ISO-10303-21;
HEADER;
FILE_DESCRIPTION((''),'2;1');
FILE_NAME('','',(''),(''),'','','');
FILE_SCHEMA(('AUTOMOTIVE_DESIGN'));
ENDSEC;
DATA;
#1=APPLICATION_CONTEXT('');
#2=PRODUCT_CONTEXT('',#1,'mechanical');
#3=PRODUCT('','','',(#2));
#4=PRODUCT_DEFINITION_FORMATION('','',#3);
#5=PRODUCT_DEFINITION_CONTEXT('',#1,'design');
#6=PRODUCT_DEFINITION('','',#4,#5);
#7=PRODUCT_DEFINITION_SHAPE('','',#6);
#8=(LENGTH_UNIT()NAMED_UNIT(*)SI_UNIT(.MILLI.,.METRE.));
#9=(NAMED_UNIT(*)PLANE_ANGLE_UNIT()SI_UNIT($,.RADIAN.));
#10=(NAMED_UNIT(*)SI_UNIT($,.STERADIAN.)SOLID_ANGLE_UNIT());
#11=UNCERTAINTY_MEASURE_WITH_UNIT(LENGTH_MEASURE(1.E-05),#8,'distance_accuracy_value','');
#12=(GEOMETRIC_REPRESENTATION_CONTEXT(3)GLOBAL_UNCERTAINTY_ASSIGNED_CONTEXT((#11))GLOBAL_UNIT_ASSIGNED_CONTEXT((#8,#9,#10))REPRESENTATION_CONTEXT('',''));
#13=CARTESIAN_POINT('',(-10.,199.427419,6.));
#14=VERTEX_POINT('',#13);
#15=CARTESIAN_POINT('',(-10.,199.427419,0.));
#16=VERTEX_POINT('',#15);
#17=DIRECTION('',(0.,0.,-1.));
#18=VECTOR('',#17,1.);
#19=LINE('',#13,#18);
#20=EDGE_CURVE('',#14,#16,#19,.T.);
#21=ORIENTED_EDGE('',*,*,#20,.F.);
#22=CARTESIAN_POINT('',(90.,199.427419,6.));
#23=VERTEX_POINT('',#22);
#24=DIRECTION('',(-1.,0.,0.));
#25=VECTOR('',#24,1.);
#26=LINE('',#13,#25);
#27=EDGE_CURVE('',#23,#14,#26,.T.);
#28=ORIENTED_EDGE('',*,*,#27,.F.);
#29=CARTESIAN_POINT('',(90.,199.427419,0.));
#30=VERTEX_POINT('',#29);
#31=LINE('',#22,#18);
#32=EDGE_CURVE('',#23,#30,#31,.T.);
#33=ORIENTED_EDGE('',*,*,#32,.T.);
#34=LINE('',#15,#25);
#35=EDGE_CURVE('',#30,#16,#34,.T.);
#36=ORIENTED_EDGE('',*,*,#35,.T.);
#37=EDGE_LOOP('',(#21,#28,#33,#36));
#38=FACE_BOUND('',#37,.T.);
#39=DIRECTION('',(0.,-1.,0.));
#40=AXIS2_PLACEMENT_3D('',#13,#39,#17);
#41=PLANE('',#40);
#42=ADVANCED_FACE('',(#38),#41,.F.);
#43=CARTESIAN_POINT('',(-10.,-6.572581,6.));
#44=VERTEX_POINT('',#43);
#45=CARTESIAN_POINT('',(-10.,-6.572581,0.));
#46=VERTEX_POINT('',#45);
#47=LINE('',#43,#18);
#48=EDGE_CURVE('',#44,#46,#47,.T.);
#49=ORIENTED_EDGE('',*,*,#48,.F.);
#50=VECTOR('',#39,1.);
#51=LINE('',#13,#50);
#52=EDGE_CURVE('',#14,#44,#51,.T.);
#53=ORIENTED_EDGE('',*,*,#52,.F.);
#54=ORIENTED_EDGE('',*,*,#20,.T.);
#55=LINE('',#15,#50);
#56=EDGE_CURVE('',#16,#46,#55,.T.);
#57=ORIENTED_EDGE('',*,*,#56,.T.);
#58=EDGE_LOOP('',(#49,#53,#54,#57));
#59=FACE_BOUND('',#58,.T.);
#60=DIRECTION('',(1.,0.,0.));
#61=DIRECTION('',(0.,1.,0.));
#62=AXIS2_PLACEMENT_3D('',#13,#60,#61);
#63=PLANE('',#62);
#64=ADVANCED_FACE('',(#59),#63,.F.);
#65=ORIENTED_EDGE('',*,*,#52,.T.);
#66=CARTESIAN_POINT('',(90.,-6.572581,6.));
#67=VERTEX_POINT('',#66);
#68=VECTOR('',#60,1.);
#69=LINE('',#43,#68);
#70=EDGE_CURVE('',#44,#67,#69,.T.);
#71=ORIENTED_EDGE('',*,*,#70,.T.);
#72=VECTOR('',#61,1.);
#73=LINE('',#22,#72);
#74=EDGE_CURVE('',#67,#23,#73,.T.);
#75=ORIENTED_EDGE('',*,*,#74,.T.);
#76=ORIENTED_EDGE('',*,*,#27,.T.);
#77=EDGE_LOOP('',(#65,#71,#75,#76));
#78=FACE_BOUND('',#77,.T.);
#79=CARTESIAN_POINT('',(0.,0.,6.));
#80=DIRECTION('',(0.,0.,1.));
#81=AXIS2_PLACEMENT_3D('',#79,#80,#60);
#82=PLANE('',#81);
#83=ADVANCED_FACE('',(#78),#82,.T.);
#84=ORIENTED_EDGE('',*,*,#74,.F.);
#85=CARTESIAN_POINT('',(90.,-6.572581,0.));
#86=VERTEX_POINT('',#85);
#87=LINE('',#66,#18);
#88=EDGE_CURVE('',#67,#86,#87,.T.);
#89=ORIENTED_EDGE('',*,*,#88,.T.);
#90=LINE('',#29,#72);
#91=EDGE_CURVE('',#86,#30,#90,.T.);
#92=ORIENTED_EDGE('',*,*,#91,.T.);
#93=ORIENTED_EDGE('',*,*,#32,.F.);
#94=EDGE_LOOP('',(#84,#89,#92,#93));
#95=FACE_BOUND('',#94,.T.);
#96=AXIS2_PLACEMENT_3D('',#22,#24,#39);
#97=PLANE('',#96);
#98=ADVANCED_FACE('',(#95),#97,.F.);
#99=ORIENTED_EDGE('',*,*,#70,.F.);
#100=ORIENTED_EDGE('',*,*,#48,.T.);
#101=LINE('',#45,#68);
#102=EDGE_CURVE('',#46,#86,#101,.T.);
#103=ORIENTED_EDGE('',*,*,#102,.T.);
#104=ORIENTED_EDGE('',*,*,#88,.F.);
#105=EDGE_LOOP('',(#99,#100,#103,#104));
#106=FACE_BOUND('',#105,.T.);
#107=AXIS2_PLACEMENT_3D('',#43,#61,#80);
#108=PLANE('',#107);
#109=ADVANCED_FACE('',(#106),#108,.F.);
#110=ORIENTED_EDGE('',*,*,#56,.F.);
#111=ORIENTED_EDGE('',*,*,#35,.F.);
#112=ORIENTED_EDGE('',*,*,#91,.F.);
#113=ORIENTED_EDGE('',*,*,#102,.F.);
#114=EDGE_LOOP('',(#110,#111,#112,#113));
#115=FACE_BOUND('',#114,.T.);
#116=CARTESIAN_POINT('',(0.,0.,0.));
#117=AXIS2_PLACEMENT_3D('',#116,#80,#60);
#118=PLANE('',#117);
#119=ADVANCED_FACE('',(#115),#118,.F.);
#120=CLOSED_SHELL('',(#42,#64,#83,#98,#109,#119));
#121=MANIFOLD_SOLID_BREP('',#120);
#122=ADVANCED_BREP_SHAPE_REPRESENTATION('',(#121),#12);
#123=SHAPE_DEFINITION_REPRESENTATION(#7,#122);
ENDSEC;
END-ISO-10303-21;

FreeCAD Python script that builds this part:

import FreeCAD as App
import Part
import Sketcher
from FreeCAD import Vector

doc = App.newDocument("Part")
body = doc.addObject("PartDesign::Body", "Body")

sketch1 = body.newObject("Sketcher::SketchObject", "Sketch")
sketch1.AttachmentSupport = (doc.getObject("XY_Plane"), [""])
sketch1.MapMode = "FlatFace"
sketch1.addGeometry([
    Part.LineSegment(Vector(-10, 199, 0), Vector(-10, -7, 0)),
    Part.LineSegment(Vector(-10, -7, 0), Vector(90, -7, 0)),
    Part.LineSegment(Vector(90, -7, 0), Vector(90, 199, 0)),
    Part.LineSegment(Vector(90, 199, 0), Vector(-10, 199, 0)),
], False)
sketch1.addConstraint([
    Sketcher.Constraint("Coincident", 0, 2, 1, 1),
    Sketcher.Constraint("Coincident", 1, 2, 2, 1),
    Sketcher.Constraint("Coincident", 2, 2, 3, 1),
    Sketcher.Constraint("Coincident", 3, 2, 0, 1),
    Sketcher.Constraint("Vertical", 0),
    Sketcher.Constraint("Horizontal", 1),
    Sketcher.Constraint("Vertical", 2),
    Sketcher.Constraint("Horizontal", 3),
    Sketcher.Constraint("DistanceX", 1, 1, 1, 2, 100.0),
    Sketcher.Constraint("DistanceY", 0, 2, 0, 1, 206.0),
    Sketcher.Constraint("DistanceX", 0, 2, -1, 1, 10.0),
    Sketcher.Constraint("DistanceY", 0, 2, -1, 1, 6.572581),
])
pad1 = body.newObject("PartDesign::Pad", "Pad")
pad1.Profile = sketch1
pad1.Length = 6

doc.recompute()
